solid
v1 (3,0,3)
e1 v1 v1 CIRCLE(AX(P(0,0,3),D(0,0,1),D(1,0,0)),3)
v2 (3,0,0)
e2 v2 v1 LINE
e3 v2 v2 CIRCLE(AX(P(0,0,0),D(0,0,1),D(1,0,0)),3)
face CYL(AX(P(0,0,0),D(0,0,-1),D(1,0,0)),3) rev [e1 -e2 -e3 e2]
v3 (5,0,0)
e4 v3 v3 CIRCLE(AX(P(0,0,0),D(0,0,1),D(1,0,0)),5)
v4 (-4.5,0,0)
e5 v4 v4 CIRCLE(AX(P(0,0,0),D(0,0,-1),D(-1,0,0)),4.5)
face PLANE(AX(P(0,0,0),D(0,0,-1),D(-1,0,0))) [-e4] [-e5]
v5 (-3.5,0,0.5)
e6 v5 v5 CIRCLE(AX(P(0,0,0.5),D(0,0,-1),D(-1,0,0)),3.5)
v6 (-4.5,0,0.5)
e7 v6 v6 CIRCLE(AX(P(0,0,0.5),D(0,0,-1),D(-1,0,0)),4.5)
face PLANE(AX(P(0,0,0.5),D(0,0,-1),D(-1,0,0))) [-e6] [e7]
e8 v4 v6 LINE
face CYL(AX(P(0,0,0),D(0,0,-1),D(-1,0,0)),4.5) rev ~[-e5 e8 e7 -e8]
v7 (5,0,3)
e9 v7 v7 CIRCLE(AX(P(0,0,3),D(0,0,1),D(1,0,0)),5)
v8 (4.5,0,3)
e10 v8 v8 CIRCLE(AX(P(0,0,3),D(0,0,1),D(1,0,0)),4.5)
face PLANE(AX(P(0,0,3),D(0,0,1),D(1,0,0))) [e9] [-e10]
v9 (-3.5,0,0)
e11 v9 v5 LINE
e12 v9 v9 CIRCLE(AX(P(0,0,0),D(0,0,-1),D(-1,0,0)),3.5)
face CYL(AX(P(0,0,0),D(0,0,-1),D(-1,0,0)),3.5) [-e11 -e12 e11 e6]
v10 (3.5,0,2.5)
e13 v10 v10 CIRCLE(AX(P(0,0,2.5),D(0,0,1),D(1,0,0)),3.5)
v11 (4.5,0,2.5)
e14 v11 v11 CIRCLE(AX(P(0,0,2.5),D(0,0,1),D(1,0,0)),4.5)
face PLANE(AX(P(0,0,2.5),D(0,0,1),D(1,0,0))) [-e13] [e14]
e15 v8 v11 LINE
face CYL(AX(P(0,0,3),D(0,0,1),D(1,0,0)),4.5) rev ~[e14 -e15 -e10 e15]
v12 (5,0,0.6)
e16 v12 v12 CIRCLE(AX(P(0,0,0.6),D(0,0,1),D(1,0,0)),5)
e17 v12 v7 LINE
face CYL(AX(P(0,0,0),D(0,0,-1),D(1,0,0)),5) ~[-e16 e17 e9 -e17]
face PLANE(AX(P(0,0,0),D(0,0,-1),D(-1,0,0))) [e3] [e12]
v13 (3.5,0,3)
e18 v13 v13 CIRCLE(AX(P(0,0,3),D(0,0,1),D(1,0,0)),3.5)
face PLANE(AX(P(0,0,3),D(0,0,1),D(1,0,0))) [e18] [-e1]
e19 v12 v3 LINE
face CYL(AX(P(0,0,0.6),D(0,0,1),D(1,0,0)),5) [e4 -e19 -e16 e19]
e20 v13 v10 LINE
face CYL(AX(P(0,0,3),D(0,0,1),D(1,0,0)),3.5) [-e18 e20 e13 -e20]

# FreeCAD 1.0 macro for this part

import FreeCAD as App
import Part
import Sketcher
from FreeCAD import Vector
Q = App.Units.Quantity

doc = App.newDocument("Part")
body = doc.addObject("PartDesign::Body", "Body")

# Sketch on XY plane
sketch1 = body.newObject("Sketcher::SketchObject", "Sketch")
sketch1.AttachmentSupport = (doc.getObject("XY_Plane"), [""])
sketch1.MapMode = "FlatFace"
sketch1.addGeometry([
    Part.Circle(Vector(0, 0, 0), Vector(0, 0, 1), 5),
    Part.Circle(Vector(0, 0, 0), Vector(0, 0, 1), 3),
], False)
sketch1.addConstraint([
    Sketcher.Constraint("Coincident", 0, 3, -1, 1),
    Sketcher.Constraint("Coincident", 1, 3, -1, 1),
    Sketcher.Constraint("Diameter", 0, Q("10 mm")),
    Sketcher.Constraint("Diameter", 1, Q("6 mm")),
])
pad1 = body.newObject("PartDesign::Pad", "Pad")
pad1.Profile = sketch1
pad1.Length = 3

# Sketch on XY plane
sketch2 = body.newObject("Sketcher::SketchObject", "Sketch001")
sketch2.AttachmentSupport = (doc.getObject("XY_Plane"), [""])
sketch2.MapMode = "FlatFace"
sketch2.addGeometry([
    Part.Circle(Vector(0, 0, 0), Vector(0, 0, 1), 6),
    Part.Circle(Vector(0, 0, 0), Vector(0, 0, 1), 5),
], False)
sketch2.addConstraint([
    Sketcher.Constraint("Coincident", 0, 3, -1, 1),
    Sketcher.Constraint("Coincident", 1, 3, -1, 1),
    Sketcher.Constraint("Diameter", 0, Q("11.2 mm")),
    Sketcher.Constraint("Diameter", 1, Q("10 mm")),
])
pad2 = body.newObject("PartDesign::Pad", "Pad001")
pad2.Profile = sketch2
pad2.Length = 0.6

# Sketch on XY plane
sketch3 = body.newObject("Sketcher::SketchObject", "Sketch002")
sketch3.AttachmentSupport = (doc.getObject("XY_Plane"), [""])
sketch3.MapMode = "FlatFace"
sketch3.AttachmentOffset = App.Placement(Vector(0, 0, 3), App.Rotation())
sketch3.addGeometry([
    Part.Circle(Vector(0, 0, 0), Vector(0, 0, 1), 4.5),
    Part.Circle(Vector(0, 0, 0), Vector(0, 0, 1), 3.5),
], False)
sketch3.addConstraint([
    Sketcher.Constraint("Coincident", 0, 3, -1, 1),
    Sketcher.Constraint("Coincident", 1, 3, -1, 1),
    Sketcher.Constraint("Diameter", 0, Q("9 mm")),
    Sketcher.Constraint("Diameter", 1, Q("7 mm")),
])
pocket1 = body.newObject("PartDesign::Pocket", "Pocket")
pocket1.Profile = sketch3
pocket1.Length = 0.5

# Sketch on XY plane
sketch4 = body.newObject("Sketcher::SketchObject", "Sketch003")
sketch4.AttachmentSupport = (doc.getObject("XY_Plane"), [""])
sketch4.MapMode = "FlatFace"
sketch4.addGeometry([
    Part.Circle(Vector(0, 0, 0), Vector(0, 0, 1), 4.5),
    Part.Circle(Vector(0, 0, 0), Vector(0, 0, 1), 3.5),
], False)
sketch4.addConstraint([
    Sketcher.Constraint("Coincident", 0, 3, -1, 1),
    Sketcher.Constraint("Coincident", 1, 3, -1, 1),
    Sketcher.Constraint("Diameter", 0, Q("9 mm")),
    Sketcher.Constraint("Diameter", 1, Q("7 mm")),
])
pocket2 = body.newObject("PartDesign::Pocket", "Pocket001")
pocket2.Profile = sketch4
pocket2.Length = 0.5
pocket2.Reversed = True

# Sketch on XY plane
sketch5 = body.newObject("Sketcher::SketchObject", "Sketch004")
sketch5.AttachmentSupport = (doc.getObject("XY_Plane"), [""])
sketch5.MapMode = "FlatFace"
sketch5.AttachmentOffset = App.Placement(Vector(0, 0, 0.6), App.Rotation())
sketch5.addGeometry([
    Part.Circle(Vector(0, 0, 0), Vector(0, 0, 1), 6),
    Part.Circle(Vector(0, 0, 0), Vector(0, 0, 1), 5),
], False)
sketch5.addConstraint([
    Sketcher.Constraint("Coincident", 0, 3, -1, 1),
    Sketcher.Constraint("Coincident", 1, 3, -1, 1),
    Sketcher.Constraint("Diameter", 1, Q("10 mm")),
    Sketcher.Constraint("Diameter", 0, Q("11.2 mm")),
])
pocket3 = body.newObject("PartDesign::Pocket", "Pocket002")
pocket3.Profile = sketch5
pocket3.Length = 0.6

doc.recompute()
